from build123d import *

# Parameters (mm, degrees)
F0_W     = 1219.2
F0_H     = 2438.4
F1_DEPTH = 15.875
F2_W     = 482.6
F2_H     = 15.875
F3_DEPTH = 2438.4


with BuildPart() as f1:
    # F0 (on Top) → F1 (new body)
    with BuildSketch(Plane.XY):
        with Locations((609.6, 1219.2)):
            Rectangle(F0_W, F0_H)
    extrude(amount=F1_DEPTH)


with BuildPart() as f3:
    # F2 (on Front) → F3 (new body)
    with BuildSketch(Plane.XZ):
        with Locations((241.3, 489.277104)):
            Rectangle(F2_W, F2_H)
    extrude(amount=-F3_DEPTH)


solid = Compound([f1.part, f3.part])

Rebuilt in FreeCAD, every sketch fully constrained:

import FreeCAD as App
import Part
import Sketcher

V = App.Vector
Q = App.Units.Quantity

doc = App.newDocument("Part")
body = doc.addObject("PartDesign::Body", "Body")

# Sketch on XY plane
sketch1 = doc.addObject("Sketcher::SketchObject", "Sketch")
body.addObject(sketch1)
sketch1.AttachmentSupport = (doc.XY_Plane, [""])
sketch1.MapMode = "FlatFace"
sketch1.addGeometry([
    Part.LineSegment(V(0, 2438, 0), V(0, 0, 0)),
    Part.LineSegment(V(0, 0, 0), V(1219, 0, 0)),
    Part.LineSegment(V(1219, 0, 0), V(1219, 2438, 0)),
    Part.LineSegment(V(1219, 2438, 0), V(0, 2438, 0)),
], False)
sketch1.addConstraint([
    Sketcher.Constraint("Coincident", 0, 2, 1, 1),
    Sketcher.Constraint("Coincident", 1, 2, 2, 1),
    Sketcher.Constraint("Coincident", 2, 2, 3, 1),
    Sketcher.Constraint("Coincident", 3, 2, 0, 1),
    Sketcher.Constraint("Vertical", 0),
    Sketcher.Constraint("Horizontal", 1),
    Sketcher.Constraint("Vertical", 2),
    Sketcher.Constraint("Horizontal", 3),
    Sketcher.Constraint("Coincident", 0, 2, -1, 1),
    Sketcher.Constraint("DistanceX", 1, 1, 1, 2, Q("48 in")),
    Sketcher.Constraint("DistanceY", 0, 2, 0, 1, Q("96 in")),
])
pad1 = doc.addObject("PartDesign::Pad", "Pad")
body.addObject(pad1)
pad1.Profile = sketch1
pad1.Length = Q("0.625 in")
body2 = doc.addObject("PartDesign::Body", "Body001")

# Sketch on XZ plane
sketch2 = doc.addObject("Sketcher::SketchObject", "Sketch001")
body2.addObject(sketch2)
sketch2.AttachmentSupport = (doc.getObject("XZ_Plane001"), [""])
sketch2.MapMode = "FlatFace"
sketch2.addGeometry([
    Part.LineSegment(V(0, 497, 0), V(0, 481, 0)),
    Part.LineSegment(V(0, 481, 0), V(483, 481, 0)),
    Part.LineSegment(V(483, 481, 0), V(483, 497, 0)),
    Part.LineSegment(V(483, 497, 0), V(0, 497, 0)),
], False)
sketch2.addConstraint([
    Sketcher.Constraint("Coincident", 0, 2, 1, 1),
    Sketcher.Constraint("Coincident", 1, 2, 2, 1),
    Sketcher.Constraint("Coincident", 2, 2, 3, 1),
    Sketcher.Constraint("Coincident", 3, 2, 0, 1),
    Sketcher.Constraint("Vertical", 0),
    Sketcher.Constraint("Horizontal", 1),
    Sketcher.Constraint("Vertical", 2),
    Sketcher.Constraint("Horizontal", 3),
    Sketcher.Constraint("PointOnObject", 0, 2, -2),
    Sketcher.Constraint("DistanceX", 1, 1, 1, 2, Q("19 in")),
    Sketcher.Constraint("DistanceY", 0, 2, 0, 1, Q("0.625 in")),
    Sketcher.Constraint("DistanceY", -1, 1, 0, 2, 481.339604),
])
pad2 = doc.addObject("PartDesign::Pad", "Pad001")
body2.addObject(pad2)
pad2.Profile = sketch2
pad2.Length = Q("96 in")
pad2.Reversed = True

doc.recompute()
